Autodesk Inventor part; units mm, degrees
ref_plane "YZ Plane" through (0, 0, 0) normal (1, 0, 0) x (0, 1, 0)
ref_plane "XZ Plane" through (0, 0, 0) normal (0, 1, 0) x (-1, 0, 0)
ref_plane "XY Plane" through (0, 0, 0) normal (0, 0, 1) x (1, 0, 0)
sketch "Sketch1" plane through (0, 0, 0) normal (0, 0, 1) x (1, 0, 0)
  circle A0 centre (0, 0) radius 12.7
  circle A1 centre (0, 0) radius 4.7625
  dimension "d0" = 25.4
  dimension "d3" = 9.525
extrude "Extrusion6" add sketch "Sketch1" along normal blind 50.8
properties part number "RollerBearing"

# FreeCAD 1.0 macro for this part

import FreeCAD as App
import Part
import Sketcher

V = App.Vector
Q = App.Units.Quantity

doc = App.newDocument("Part")
body = doc.addObject("PartDesign::Body", "Body")

# Sketch on XY plane
sketch1 = body.newObject("Sketcher::SketchObject", "Sketch")
sketch1.AttachmentSupport = (doc.getObject("XY_Plane"), [""])
sketch1.MapMode = "FlatFace"
sketch1.addGeometry(Part.Circle(V(0, 0, 0), V(0, 0, 1), 12.7), False)
sketch1.addGeometry(Part.Circle(V(0, 0, 0), V(0, 0, 1), 4.7625), False)
sketch1.addConstraint(Sketcher.Constraint("Coincident", 0, 3, -1, 1))
sketch1.addConstraint(Sketcher.Constraint("Coincident", 1, 3, -1, 1))
sketch1.addConstraint(Sketcher.Constraint("Diameter", 0, Q("1 in")))
sketch1.addConstraint(Sketcher.Constraint("Diameter", 1, Q("0.375 in")))
pad1 = body.newObject("PartDesign::Pad", "Pad")
pad1.Profile = sketch1
pad1.Length = Q("2 in")

doc.recompute()
